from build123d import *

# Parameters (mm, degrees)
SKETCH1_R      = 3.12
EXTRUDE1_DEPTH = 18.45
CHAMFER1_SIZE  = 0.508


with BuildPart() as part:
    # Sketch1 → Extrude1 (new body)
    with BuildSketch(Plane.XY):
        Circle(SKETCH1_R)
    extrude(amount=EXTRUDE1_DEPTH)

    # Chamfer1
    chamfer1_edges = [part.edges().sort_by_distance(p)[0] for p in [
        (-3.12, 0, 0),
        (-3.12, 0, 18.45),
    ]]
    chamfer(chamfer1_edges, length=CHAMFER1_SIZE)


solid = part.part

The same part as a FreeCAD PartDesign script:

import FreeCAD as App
import Part
import Sketcher
Q = App.Units.Quantity


def edges_at(feature, points):
    """Names of the edges that pass closest to the given points."""
    edges = feature.Shape.Edges
    near = lambda p: min(range(len(edges)), key=lambda i: edges[i].distToShape(Part.Vertex(*p))[0])
    return sorted({f"Edge{near(p) + 1}" for p in points})

doc = App.newDocument("Part")
body = doc.addObject("PartDesign::Body", "Body")

sketch1 = body.newObject("Sketcher::SketchObject", "Sketch")
sketch1.AttachmentSupport = (doc.getObject("XY_Plane"), [""])
sketch1.MapMode = "FlatFace"
sketch1.addGeometry(Part.Circle(App.Vector(0, 0, 0), App.Vector(0, 0, 1), 3.1), False)
sketch1.addConstraint(Sketcher.Constraint("Coincident", 0, 3, -1, 1))
sketch1.addConstraint(Sketcher.Constraint("Diameter", 0, 6.24))
pad1 = body.newObject("PartDesign::Pad", "Pad")
pad1.Profile = sketch1
pad1.Length = 18.45
doc.recompute()

chamfer = body.newObject("PartDesign::Chamfer", "Chamfer")
chamfer.Base = (pad1, edges_at(pad1, [(-3.12, 0, 0), (-3.12, 0, 18.45)]))
chamfer.Size = Q("0.02 in")

doc.recompute()
